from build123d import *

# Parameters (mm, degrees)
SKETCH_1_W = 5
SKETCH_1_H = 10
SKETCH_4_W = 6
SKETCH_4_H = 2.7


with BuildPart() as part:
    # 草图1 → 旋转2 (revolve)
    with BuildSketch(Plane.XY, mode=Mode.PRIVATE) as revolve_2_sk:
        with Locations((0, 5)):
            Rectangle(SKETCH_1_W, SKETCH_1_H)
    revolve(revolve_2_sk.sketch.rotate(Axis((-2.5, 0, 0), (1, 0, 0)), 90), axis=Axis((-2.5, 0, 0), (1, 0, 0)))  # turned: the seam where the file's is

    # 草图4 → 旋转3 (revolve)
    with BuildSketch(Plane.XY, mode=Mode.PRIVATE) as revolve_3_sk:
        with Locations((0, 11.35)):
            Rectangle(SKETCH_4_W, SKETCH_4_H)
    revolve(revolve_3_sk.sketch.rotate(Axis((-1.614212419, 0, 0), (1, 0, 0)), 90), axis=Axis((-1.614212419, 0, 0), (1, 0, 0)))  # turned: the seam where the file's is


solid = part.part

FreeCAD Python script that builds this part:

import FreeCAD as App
import Part
import Sketcher
Q = App.Units.Quantity


def add_polygon(sketch, points):
    """Adds a closed chain of lines whose ends are joined by coincident constraints."""
    first, n = sketch.GeometryCount, len(points)
    for a, b in zip(points, points[1:] + points[:1]):
        sketch.addGeometry(Part.LineSegment(App.Vector(*a, 0), App.Vector(*b, 0)), False)
    for i in range(n):
        sketch.addConstraint(Sketcher.Constraint("Coincident", first + i, 2, first + (i + 1) % n, 1))

doc = App.newDocument("Part")
body = doc.addObject("PartDesign::Body", "Body")

# Sketch on XY plane
sketch1 = body.newObject("Sketcher::SketchObject", "Sketch")
sketch1.AttachmentSupport = (doc.getObject("XY_Plane"), [""])
sketch1.MapMode = "FlatFace"
add_polygon(sketch1, [(-2, 10), (-2, 0), (2, 0), (2, 10)])  # lines 0-3
sketch1.addConstraint(Sketcher.Constraint("Vertical", 0))
sketch1.addConstraint(Sketcher.Constraint("Horizontal", 1))
sketch1.addConstraint(Sketcher.Constraint("Vertical", 2))
sketch1.addConstraint(Sketcher.Constraint("Horizontal", 3))
sketch1.addConstraint(Sketcher.Constraint("Symmetric", 0, 2, 1, 2, -1, 1))
sketch1.addConstraint(Sketcher.Constraint("DistanceX", 1, 1, 1, 2, Q("5 mm")))
sketch1.addConstraint(Sketcher.Constraint("DistanceY", 0, 2, 0, 1, Q("10 mm")))
revolution = body.newObject("PartDesign::Revolution", "Revolution")
revolution.Profile = sketch1
revolution.ReferenceAxis = (sketch1, ["H_Axis"])
revolution.Angle = 360

# Sketch on XY plane
sketch2 = body.newObject("Sketcher::SketchObject", "Sketch001")
sketch2.AttachmentSupport = (doc.getObject("XY_Plane"), [""])
sketch2.MapMode = "FlatFace"
add_polygon(sketch2, [(-3, 12.7), (-3, 10), (3, 10), (3, 12.7)])  # lines 0-3
sketch2.addConstraint(Sketcher.Constraint("Vertical", 0))
sketch2.addConstraint(Sketcher.Constraint("Horizontal", 1))
sketch2.addConstraint(Sketcher.Constraint("Vertical", 2))
sketch2.addConstraint(Sketcher.Constraint("Horizontal", 3))
sketch2.addConstraint(Sketcher.Constraint("DistanceX", 1, 1, 1, 2, Q("6 mm")))
sketch2.addConstraint(Sketcher.Constraint("DistanceY", 0, 2, 0, 1, Q("2.7 mm")))
sketch2.addConstraint(Sketcher.Constraint("DistanceX", 0, 2, -1, 1, Q("3 mm")))
sketch2.addConstraint(Sketcher.Constraint("DistanceY", -1, 1, 0, 2, Q("10 mm")))
revolution2 = body.newObject("PartDesign::Revolution", "Revolution001")
revolution2.Profile = sketch2
revolution2.ReferenceAxis = (sketch2, ["H_Axis"])
revolution2.Angle = 360

doc.recompute()
